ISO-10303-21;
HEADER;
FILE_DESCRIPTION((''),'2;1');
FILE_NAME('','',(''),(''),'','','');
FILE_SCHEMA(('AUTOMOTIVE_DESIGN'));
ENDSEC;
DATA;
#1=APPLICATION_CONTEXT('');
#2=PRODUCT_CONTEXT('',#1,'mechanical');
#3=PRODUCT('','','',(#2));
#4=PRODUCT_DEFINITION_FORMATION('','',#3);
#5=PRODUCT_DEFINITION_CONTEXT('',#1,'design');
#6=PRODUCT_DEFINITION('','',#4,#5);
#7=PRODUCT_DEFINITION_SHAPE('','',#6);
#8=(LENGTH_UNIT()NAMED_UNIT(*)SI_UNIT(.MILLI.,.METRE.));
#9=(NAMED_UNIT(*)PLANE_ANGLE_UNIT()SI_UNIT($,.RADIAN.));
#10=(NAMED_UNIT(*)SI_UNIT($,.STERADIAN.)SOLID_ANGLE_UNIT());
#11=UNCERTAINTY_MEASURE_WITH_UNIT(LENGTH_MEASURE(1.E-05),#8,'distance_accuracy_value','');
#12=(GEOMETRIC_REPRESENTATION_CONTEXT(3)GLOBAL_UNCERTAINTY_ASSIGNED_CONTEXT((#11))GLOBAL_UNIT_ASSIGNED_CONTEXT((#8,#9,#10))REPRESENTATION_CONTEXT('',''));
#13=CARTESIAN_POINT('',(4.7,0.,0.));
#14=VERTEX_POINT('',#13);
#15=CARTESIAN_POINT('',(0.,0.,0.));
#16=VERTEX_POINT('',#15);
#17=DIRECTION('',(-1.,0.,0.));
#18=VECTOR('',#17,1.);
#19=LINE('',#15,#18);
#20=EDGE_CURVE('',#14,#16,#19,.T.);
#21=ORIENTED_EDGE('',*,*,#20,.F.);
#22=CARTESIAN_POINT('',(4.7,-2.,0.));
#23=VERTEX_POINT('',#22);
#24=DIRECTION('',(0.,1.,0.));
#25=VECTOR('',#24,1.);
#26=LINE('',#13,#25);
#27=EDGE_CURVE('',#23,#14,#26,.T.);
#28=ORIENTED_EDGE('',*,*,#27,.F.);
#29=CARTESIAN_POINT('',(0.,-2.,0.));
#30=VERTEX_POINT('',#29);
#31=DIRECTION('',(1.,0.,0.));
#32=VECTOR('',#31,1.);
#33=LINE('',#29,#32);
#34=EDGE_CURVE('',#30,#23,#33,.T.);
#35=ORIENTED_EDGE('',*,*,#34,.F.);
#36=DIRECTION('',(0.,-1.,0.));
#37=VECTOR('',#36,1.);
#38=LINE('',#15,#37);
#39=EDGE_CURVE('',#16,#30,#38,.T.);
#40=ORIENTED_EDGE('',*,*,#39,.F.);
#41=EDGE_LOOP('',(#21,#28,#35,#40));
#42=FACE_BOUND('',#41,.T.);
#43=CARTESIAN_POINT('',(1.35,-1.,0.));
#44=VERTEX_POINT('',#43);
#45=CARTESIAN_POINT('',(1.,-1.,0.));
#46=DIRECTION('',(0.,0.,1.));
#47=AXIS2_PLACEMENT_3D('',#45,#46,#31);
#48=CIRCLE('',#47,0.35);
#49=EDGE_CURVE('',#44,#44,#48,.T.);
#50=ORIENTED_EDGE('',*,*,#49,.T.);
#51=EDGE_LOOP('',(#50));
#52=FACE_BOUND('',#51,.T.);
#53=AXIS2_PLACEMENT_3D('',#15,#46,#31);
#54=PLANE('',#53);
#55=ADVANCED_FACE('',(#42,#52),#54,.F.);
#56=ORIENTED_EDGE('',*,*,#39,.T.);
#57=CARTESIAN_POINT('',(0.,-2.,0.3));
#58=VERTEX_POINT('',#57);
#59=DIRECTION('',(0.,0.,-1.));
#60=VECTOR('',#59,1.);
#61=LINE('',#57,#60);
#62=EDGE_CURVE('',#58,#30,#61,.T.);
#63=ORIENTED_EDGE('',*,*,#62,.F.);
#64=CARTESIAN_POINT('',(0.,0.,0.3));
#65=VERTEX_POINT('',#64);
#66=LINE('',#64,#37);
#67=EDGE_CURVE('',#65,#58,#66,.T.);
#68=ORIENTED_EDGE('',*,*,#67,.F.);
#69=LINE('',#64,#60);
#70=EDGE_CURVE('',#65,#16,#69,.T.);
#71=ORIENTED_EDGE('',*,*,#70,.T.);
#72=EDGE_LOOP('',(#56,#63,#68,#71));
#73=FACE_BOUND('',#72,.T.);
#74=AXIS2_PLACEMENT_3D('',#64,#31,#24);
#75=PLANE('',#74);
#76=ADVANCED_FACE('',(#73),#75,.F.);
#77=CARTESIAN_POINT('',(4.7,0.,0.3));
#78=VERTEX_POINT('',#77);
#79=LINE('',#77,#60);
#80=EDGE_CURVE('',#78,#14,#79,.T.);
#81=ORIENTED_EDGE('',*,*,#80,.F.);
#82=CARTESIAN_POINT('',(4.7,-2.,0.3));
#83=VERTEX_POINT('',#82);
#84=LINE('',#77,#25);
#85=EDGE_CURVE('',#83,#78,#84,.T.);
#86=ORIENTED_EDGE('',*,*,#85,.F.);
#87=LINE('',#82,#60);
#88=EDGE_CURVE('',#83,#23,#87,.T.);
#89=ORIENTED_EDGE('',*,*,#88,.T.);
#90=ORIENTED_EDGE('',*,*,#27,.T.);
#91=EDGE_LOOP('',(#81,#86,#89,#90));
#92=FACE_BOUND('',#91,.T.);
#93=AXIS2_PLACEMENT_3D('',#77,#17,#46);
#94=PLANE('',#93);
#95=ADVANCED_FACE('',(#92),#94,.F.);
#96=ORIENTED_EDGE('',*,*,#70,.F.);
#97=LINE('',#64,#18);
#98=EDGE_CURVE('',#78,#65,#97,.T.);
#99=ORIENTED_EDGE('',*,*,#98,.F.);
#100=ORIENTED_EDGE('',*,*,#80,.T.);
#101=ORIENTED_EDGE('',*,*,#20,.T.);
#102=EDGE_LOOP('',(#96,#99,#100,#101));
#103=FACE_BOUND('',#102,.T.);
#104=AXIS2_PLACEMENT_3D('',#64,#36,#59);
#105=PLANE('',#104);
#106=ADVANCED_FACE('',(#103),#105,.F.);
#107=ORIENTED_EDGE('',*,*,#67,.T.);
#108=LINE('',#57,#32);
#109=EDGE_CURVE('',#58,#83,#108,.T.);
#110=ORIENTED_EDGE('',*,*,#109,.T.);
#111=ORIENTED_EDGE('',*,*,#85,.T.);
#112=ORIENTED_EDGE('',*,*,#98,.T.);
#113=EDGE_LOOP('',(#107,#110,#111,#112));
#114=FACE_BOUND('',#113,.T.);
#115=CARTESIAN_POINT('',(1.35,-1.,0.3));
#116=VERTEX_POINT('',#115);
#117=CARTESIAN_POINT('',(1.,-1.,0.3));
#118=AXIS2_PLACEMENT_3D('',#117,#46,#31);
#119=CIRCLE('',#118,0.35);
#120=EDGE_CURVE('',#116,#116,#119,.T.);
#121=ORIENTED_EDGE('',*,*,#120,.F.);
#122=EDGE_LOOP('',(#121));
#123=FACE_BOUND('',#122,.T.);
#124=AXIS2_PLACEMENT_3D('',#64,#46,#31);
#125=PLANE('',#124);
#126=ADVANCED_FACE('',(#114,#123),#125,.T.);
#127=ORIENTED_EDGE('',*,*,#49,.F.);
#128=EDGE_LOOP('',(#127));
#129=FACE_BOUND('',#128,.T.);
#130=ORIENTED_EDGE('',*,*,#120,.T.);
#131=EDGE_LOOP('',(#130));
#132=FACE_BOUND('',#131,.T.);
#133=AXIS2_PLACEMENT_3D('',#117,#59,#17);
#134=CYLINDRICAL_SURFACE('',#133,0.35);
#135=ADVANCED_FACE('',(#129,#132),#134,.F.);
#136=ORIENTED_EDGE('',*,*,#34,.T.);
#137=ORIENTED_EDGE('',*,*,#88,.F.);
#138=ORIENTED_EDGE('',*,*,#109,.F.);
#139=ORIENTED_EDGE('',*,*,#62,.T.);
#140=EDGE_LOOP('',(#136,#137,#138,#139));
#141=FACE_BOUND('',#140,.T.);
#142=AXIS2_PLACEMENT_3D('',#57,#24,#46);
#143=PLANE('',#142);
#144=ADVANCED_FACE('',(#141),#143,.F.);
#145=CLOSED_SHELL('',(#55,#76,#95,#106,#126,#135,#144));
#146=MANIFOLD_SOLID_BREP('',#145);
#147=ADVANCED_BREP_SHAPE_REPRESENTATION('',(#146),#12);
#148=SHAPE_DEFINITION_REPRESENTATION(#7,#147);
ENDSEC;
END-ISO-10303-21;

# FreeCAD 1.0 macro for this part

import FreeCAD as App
import Part
import Sketcher
from FreeCAD import Vector


def add_polygon(sketch, points):
    """Adds a closed chain of lines whose ends are joined by coincident constraints."""
    first, n = sketch.GeometryCount, len(points)
    for a, b in zip(points, points[1:] + points[:1]):
        sketch.addGeometry(Part.LineSegment(App.Vector(*a, 0), App.Vector(*b, 0)), False)
    for i in range(n):
        sketch.addConstraint(Sketcher.Constraint("Coincident", first + i, 2, first + (i + 1) % n, 1))

doc = App.newDocument("Part")
params = doc.addObject("Spreadsheet::Sheet", "Params")
for row, (alias, value) in enumerate([
    ("sketch1_diameter", "0.7 mm"),
    ("sketch1_height", "2 mm"),
    ("sketch1_width", "4.7 mm"),
    ("pad1_length", "0.3 mm"),
], start=1):
    params.set(f"A{row}", alias)
    params.set(f"B{row}", "=" + value)
    params.setAlias(f"B{row}", alias)

body = doc.addObject("PartDesign::Body", "Body")

# Sketch on XY plane
sketch1 = body.newObject("Sketcher::SketchObject", "Sketch")
sketch1.AttachmentSupport = (doc.getObject("XY_Plane"), [""])
sketch1.MapMode = "FlatFace"
add_polygon(sketch1, [(0, 0), (0, -2), (4.7, -2), (4.7, 0)])  # lines 0-3
sketch1.addGeometry(Part.Circle(Vector(1, -1, 0), Vector(0, 0, 1), 0.35), False)  # 4
sketch1.addConstraint(Sketcher.Constraint("Vertical", 0))
sketch1.addConstraint(Sketcher.Constraint("Horizontal", 1))
sketch1.addConstraint(Sketcher.Constraint("Vertical", 2))
sketch1.addConstraint(Sketcher.Constraint("Horizontal", 3))
sketch1.addConstraint(Sketcher.Constraint("Coincident", 3, 2, -1, 1))
sketch1.addConstraint(Sketcher.Constraint("Diameter", 4, 0.7))
sketch1.addConstraint(Sketcher.Constraint("DistanceY", 0, 2, 0, 1, 2.0))
sketch1.addConstraint(Sketcher.Constraint("DistanceX", 1, 1, 1, 2, 4.7))
sketch1.addConstraint(Sketcher.Constraint("DistanceX", -1, 1, 4, 3, 1.0))
sketch1.addConstraint(Sketcher.Constraint("DistanceY", 4, 3, -1, 1, 1.0))
sketch1.setExpression("Constraints[9]", "Params.sketch1_diameter")
sketch1.setExpression("Constraints[10]", "Params.sketch1_height")
sketch1.setExpression("Constraints[11]", "Params.sketch1_width")
pad1 = body.newObject("PartDesign::Pad", "Pad")
pad1.Profile = sketch1
pad1.setExpression("Length", "Params.pad1_length")

doc.recompute()
